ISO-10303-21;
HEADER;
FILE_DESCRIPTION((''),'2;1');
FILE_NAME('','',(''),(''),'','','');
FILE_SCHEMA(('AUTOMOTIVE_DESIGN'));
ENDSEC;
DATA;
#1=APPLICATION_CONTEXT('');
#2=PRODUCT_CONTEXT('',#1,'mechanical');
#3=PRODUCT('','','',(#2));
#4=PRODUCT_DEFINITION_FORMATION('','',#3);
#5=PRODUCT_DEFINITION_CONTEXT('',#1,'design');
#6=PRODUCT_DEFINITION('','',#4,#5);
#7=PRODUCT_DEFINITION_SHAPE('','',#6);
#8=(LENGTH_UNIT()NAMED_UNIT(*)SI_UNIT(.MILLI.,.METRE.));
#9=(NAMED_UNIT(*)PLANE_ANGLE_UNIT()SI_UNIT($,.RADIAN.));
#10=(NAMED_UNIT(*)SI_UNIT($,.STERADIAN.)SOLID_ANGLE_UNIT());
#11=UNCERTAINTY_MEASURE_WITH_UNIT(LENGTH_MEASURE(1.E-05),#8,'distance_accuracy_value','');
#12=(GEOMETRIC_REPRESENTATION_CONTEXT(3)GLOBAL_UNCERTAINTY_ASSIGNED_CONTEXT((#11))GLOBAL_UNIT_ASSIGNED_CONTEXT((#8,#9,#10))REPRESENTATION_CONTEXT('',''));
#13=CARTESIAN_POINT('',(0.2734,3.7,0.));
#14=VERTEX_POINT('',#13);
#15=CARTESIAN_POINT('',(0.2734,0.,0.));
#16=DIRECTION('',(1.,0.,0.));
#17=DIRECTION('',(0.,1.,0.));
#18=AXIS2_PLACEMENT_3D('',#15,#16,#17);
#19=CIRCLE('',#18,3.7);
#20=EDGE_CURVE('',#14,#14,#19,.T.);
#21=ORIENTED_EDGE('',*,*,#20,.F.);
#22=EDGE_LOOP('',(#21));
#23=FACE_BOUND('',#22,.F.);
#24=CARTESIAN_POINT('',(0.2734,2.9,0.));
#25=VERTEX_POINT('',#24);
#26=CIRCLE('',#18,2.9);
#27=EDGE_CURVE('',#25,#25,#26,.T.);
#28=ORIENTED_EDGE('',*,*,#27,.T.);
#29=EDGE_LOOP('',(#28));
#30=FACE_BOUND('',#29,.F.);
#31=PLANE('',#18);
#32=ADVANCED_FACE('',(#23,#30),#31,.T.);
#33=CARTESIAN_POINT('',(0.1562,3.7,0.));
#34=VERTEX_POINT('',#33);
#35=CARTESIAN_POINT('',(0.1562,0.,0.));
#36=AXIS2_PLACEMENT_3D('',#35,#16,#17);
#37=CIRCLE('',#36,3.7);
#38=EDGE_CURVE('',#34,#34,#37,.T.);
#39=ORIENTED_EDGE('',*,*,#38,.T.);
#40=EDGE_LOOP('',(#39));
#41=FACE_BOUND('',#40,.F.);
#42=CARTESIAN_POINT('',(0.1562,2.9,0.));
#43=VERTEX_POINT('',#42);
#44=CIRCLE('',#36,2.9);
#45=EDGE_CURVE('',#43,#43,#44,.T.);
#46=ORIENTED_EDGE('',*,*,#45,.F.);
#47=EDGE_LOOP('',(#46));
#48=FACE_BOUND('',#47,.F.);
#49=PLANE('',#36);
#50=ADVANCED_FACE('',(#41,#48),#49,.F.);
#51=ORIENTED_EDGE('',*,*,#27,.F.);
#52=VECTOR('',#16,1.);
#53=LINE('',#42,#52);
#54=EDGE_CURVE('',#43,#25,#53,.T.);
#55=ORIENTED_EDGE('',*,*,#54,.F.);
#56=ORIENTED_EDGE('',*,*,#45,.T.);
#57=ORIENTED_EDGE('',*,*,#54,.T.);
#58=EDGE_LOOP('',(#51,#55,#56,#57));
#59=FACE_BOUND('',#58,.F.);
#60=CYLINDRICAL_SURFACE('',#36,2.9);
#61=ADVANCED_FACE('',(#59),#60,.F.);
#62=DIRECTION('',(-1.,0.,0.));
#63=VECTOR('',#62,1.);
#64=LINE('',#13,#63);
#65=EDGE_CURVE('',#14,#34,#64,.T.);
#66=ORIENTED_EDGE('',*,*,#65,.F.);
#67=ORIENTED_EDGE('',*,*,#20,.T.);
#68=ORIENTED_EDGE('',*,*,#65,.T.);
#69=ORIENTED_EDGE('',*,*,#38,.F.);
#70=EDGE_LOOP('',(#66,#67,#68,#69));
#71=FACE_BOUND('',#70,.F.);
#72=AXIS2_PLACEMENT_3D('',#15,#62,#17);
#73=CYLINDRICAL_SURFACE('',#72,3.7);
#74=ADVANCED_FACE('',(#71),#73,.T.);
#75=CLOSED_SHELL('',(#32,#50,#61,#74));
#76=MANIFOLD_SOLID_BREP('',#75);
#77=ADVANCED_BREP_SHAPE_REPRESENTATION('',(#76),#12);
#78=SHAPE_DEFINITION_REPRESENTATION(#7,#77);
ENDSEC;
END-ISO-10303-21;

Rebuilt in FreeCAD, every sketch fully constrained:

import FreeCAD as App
import Part
import Sketcher
Q = App.Units.Quantity

doc = App.newDocument("Part")
body = doc.addObject("PartDesign::Body", "Body")

sketch1 = body.newObject("Sketcher::SketchObject", "Sketch")
sketch1.AttachmentSupport = (doc.getObject("XY_Plane"), [""])
sketch1.MapMode = "FlatFace"
sketch1.addGeometry(Part.LineSegment(App.Vector(0.16, 3.7, 0), App.Vector(0.16, 2.9, 0)), False)
sketch1.addGeometry(Part.LineSegment(App.Vector(0.16, 2.9, 0), App.Vector(0.27, 2.9, 0)), False)
sketch1.addGeometry(Part.LineSegment(App.Vector(0.27, 2.9, 0), App.Vector(0.27, 3.7, 0)), False)
sketch1.addGeometry(Part.LineSegment(App.Vector(0.27, 3.7, 0), App.Vector(0.16, 3.7, 0)), False)
sketch1.addConstraint(Sketcher.Constraint("Coincident", 0, 2, 1, 1))
sketch1.addConstraint(Sketcher.Constraint("Coincident", 1, 2, 2, 1))
sketch1.addConstraint(Sketcher.Constraint("Coincident", 2, 2, 3, 1))
sketch1.addConstraint(Sketcher.Constraint("Coincident", 3, 2, 0, 1))
sketch1.addConstraint(Sketcher.Constraint("Vertical", 0))
sketch1.addConstraint(Sketcher.Constraint("Horizontal", 1))
sketch1.addConstraint(Sketcher.Constraint("Vertical", 2))
sketch1.addConstraint(Sketcher.Constraint("Horizontal", 3))
sketch1.addConstraint(Sketcher.Constraint("DistanceY", 0, 2, 0, 1, Q("0.8 mm")))
sketch1.addConstraint(Sketcher.Constraint("DistanceY", -1, 1, 0, 2, Q("2.9 mm")))
sketch1.addConstraint(Sketcher.Constraint("DistanceX", 1, 1, 1, 2, Q("0.1172 mm")))
sketch1.addConstraint(Sketcher.Constraint("DistanceX", -1, 1, 0, 2, Q("0.1562 mm")))
revolution = body.newObject("PartDesign::Revolution", "Revolution")
revolution.Profile = sketch1
revolution.ReferenceAxis = (sketch1, ["H_Axis"])
revolution.Angle = 360

doc.recompute()
